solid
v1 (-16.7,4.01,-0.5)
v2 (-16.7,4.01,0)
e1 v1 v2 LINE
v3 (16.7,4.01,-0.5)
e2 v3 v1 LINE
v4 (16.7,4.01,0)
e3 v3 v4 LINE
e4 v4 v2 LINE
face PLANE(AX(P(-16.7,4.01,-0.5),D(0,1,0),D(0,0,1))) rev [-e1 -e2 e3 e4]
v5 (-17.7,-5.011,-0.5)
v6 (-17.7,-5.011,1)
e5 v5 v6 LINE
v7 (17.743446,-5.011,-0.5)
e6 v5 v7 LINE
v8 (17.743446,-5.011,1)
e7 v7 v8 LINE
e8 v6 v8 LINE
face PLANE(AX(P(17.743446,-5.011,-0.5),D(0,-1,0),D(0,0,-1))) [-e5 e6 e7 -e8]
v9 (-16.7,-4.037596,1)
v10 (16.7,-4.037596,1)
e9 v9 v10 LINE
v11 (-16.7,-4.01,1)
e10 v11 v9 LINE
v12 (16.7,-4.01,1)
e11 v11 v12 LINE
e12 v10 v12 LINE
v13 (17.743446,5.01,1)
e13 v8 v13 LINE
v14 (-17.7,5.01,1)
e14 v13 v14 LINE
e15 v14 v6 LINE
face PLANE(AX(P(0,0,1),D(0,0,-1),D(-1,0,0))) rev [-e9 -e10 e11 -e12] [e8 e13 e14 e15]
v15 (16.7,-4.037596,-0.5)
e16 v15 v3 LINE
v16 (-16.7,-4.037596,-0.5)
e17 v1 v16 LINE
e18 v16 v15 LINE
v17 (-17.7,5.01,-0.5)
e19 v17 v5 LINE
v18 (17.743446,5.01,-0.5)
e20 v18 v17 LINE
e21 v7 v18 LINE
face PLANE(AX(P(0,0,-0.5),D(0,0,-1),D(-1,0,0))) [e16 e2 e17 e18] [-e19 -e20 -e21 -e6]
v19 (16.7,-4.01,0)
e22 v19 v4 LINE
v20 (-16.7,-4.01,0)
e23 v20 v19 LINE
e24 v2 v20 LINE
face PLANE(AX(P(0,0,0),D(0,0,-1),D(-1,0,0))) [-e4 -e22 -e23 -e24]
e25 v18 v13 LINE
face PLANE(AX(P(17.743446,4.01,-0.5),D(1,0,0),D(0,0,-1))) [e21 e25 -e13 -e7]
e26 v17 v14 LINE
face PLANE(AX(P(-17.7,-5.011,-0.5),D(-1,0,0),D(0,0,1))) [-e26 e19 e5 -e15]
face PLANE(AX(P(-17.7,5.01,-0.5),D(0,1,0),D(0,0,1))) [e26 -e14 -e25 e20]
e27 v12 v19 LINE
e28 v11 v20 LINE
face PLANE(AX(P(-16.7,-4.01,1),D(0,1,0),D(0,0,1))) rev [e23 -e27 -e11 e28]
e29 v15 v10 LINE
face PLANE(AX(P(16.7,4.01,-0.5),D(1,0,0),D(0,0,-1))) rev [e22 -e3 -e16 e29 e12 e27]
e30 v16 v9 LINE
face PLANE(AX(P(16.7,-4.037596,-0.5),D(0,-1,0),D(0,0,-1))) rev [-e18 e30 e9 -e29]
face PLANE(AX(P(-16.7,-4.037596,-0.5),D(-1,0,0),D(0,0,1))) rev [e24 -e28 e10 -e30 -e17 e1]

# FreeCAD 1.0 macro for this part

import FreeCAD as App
import Part
import Sketcher
Q = App.Units.Quantity

doc = App.newDocument("Part")
body = doc.addObject("PartDesign::Body", "Body")

# Sketch on XY plane
sketch1 = doc.addObject("Sketcher::SketchObject", "Sketch")
body.addObject(sketch1)
sketch1.AttachmentSupport = (doc.XY_Plane, [""])
sketch1.MapMode = "FlatFace"
sketch1.addGeometry(Part.LineSegment(App.Vector(-17, 4, 0), App.Vector(-17, -4, 0)), False)
sketch1.addGeometry(Part.LineSegment(App.Vector(-17, -4, 0), App.Vector(17, -4, 0)), False)
sketch1.addGeometry(Part.LineSegment(App.Vector(17, -4, 0), App.Vector(17, 4, 0)), False)
sketch1.addGeometry(Part.LineSegment(App.Vector(17, 4, 0), App.Vector(-17, 4, 0)), False)
sketch1.addConstraint(Sketcher.Constraint("Coincident", 0, 2, 1, 1))
sketch1.addConstraint(Sketcher.Constraint("Coincident", 1, 2, 2, 1))
sketch1.addConstraint(Sketcher.Constraint("Coincident", 2, 2, 3, 1))
sketch1.addConstraint(Sketcher.Constraint("Coincident", 3, 2, 0, 1))
sketch1.addConstraint(Sketcher.Constraint("Vertical", 0))
sketch1.addConstraint(Sketcher.Constraint("Horizontal", 1))
sketch1.addConstraint(Sketcher.Constraint("Vertical", 2))
sketch1.addConstraint(Sketcher.Constraint("Horizontal", 3))
sketch1.addConstraint(Sketcher.Constraint("Symmetric", 0, 2, 2, 2, -1, 1))
sketch1.addConstraint(Sketcher.Constraint("DistanceX", 1, 1, 1, 2, Q("33.4 mm")))
sketch1.addConstraint(Sketcher.Constraint("DistanceY", 0, 2, 0, 1, Q("8.02 mm")))
pad1 = doc.addObject("PartDesign::Pad", "Pad")
body.addObject(pad1)
pad1.Profile = sketch1
pad1.Length = 1

# Sketch on XY plane
sketch2 = doc.addObject("Sketcher::SketchObject", "Sketch001")
body.addObject(sketch2)
sketch2.AttachmentSupport = (doc.XY_Plane, [""])
sketch2.MapMode = "FlatFace"
sketch2.AttachmentOffset = App.Placement(App.Vector(0, 0, 1), App.Rotation())
sketch2.addGeometry(Part.LineSegment(App.Vector(18, 5, 0), App.Vector(-18, 5, 0)), False)
sketch2.addGeometry(Part.LineSegment(App.Vector(-18, 5, 0), App.Vector(-18, -5, 0)), False)
sketch2.addGeometry(Part.LineSegment(App.Vector(-18, -5, 0), App.Vector(18, -5, 0)), False)
sketch2.addGeometry(Part.LineSegment(App.Vector(18, -5, 0), App.Vector(18, 5, 0)), False)
sketch2.addGeometry(Part.LineSegment(App.Vector(-17, -4, 0), App.Vector(-17, 4, 0)), False)
sketch2.addGeometry(Part.LineSegment(App.Vector(-17, 4, 0), App.Vector(17, 4, 0)), False)
sketch2.addGeometry(Part.LineSegment(App.Vector(17, 4, 0), App.Vector(17, -4, 0)), False)
sketch2.addGeometry(Part.LineSegment(App.Vector(17, -4, 0), App.Vector(-17, -4, 0)), False)
sketch2.addConstraint(Sketcher.Constraint("Coincident", 0, 2, 1, 1))
sketch2.addConstraint(Sketcher.Constraint("Coincident", 1, 2, 2, 1))
sketch2.addConstraint(Sketcher.Constraint("Coincident", 2, 2, 3, 1))
sketch2.addConstraint(Sketcher.Constraint("Coincident", 3, 2, 0, 1))
sketch2.addConstraint(Sketcher.Constraint("Coincident", 4, 2, 5, 1))
sketch2.addConstraint(Sketcher.Constraint("Coincident", 5, 2, 6, 1))
sketch2.addConstraint(Sketcher.Constraint("Coincident", 6, 2, 7, 1))
sketch2.addConstraint(Sketcher.Constraint("Coincident", 7, 2, 4, 1))
sketch2.addConstraint(Sketcher.Constraint("Horizontal", 0))
sketch2.addConstraint(Sketcher.Constraint("Vertical", 1))
sketch2.addConstraint(Sketcher.Constraint("Horizontal", 2))
sketch2.addConstraint(Sketcher.Constraint("Vertical", 3))
sketch2.addConstraint(Sketcher.Constraint("Vertical", 4))
sketch2.addConstraint(Sketcher.Constraint("Horizontal", 5))
sketch2.addConstraint(Sketcher.Constraint("Vertical", 6))
sketch2.addConstraint(Sketcher.Constraint("Horizontal", 7))
sketch2.addConstraint(Sketcher.Constraint("DistanceX", 5, 1, 5, 2, Q("33.4 mm")))
sketch2.addConstraint(Sketcher.Constraint("DistanceX", 0, 2, 4, 2, Q("1 mm")))
sketch2.addConstraint(Sketcher.Constraint("DistanceY", 4, 2, 0, 2, Q("1 mm")))
sketch2.addConstraint(Sketcher.Constraint("DistanceX", 0, 2, -1, 1, Q("17.7 mm")))
sketch2.addConstraint(Sketcher.Constraint("DistanceY", 1, 2, 1, 1, Q("10.021 mm")))
sketch2.addConstraint(Sketcher.Constraint("DistanceY", -1, 1, 0, 2, Q("5.01 mm")))
sketch2.addConstraint(Sketcher.Constraint("DistanceX", 0, 2, 0, 1, Q("35.443446 mm")))
sketch2.addConstraint(Sketcher.Constraint("DistanceY", 4, 1, 4, 2, Q("8.047596 mm")))
pad2 = doc.addObject("PartDesign::Pad", "Pad001")
body.addObject(pad2)
pad2.Profile = sketch2
pad2.Length = 1.5
pad2.Reversed = True

doc.recompute()
